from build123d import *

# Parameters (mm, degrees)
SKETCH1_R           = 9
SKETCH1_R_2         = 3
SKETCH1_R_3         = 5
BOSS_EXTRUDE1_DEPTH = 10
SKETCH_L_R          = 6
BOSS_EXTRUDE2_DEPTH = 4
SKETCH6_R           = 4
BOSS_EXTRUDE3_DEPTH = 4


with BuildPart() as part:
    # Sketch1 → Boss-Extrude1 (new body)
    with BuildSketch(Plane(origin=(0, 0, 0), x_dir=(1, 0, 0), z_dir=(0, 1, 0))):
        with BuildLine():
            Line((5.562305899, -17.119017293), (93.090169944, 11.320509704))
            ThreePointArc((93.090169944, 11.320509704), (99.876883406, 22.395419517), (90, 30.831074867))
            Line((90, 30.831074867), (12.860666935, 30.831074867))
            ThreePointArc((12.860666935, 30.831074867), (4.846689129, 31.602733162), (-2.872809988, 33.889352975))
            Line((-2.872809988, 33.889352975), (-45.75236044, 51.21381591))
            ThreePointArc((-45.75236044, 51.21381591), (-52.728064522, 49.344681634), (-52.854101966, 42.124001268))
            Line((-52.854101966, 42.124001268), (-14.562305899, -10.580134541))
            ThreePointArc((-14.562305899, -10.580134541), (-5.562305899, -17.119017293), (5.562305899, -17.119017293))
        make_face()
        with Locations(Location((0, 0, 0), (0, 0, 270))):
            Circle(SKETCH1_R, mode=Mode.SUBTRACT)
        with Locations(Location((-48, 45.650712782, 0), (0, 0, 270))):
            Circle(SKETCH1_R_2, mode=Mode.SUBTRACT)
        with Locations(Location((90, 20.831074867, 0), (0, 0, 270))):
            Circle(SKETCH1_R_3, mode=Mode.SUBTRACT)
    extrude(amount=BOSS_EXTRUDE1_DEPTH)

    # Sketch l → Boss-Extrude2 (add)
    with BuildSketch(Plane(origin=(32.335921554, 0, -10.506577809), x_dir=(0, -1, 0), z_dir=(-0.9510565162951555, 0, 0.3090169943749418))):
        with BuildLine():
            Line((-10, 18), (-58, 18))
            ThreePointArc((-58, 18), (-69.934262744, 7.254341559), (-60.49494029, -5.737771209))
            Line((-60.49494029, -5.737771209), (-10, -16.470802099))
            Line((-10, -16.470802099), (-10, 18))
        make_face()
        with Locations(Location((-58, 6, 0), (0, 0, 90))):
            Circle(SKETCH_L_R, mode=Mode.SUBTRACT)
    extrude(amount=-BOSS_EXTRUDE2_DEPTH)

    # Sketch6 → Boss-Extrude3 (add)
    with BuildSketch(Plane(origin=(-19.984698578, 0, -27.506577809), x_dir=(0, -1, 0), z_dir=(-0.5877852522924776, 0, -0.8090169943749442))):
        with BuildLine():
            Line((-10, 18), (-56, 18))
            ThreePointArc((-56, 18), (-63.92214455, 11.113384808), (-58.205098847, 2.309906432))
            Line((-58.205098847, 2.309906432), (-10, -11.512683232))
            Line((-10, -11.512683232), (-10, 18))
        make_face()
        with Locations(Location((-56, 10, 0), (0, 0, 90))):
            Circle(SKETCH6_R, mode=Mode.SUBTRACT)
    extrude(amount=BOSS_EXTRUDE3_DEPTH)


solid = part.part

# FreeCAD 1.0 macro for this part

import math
import FreeCAD as App
import Part
import Sketcher
Q = App.Units.Quantity

doc = App.newDocument("Part")
body = doc.addObject("PartDesign::Body", "Body")

sketch1 = body.newObject("Sketcher::SketchObject", "Sketch")
sketch1.AttachmentSupport = (doc.getObject("XZ_Plane"), [""])
sketch1.MapMode = "FlatFace"
sketch1.addGeometry([
    Part.LineSegment(App.Vector(5.562306, 17.119017, 0), App.Vector(93.09017, -11.32051, 0)),
    Part.ArcOfCircle(Part.Circle(App.Vector(90, -20.831075, 0), App.Vector(0, 0, 1), 10), math.radians(-90), math.radians(72)),
    Part.LineSegment(App.Vector(90, -30.831075, 0), App.Vector(12.860667, -30.831075, 0)),
    Part.ArcOfCircle(Part.Circle(App.Vector(12.860667, -72.831075, 0), App.Vector(0, 0, 1), 42), math.radians(90), math.radians(112)),
    Part.LineSegment(App.Vector(-2.87281, -33.889353, 0), App.Vector(-45.75236, -51.213816, 0)),
    Part.ArcOfCircle(Part.Circle(App.Vector(-48, -45.650713, 0), App.Vector(0, 0, 1), 6), math.radians(144), math.radians(292)),
    Part.LineSegment(App.Vector(-52.854102, -42.124001, 0), App.Vector(-14.562306, 10.580135, 0)),
    Part.ArcOfCircle(Part.Circle(App.Vector(0, 0, 0), App.Vector(0, 0, 1), 18), math.radians(72), math.radians(144)),
    Part.Circle(App.Vector(0, 0, 0), App.Vector(0, 0, 1), 9),
    Part.Circle(App.Vector(-48, -45.650713, 0), App.Vector(0, 0, 1), 3),
    Part.Circle(App.Vector(90, -20.831075, 0), App.Vector(0, 0, 1), 5),
], False)
sketch1.addConstraint([
    Sketcher.Constraint("Tangent", 0, 2, 1, 2),
    Sketcher.Constraint("Tangent", 1, 1, 2, 1),
    Sketcher.Constraint("Tangent", 2, 2, 3, 1),
    Sketcher.Constraint("Tangent", 3, 2, 4, 1),
    Sketcher.Constraint("Tangent", 4, 2, 5, 2),
    Sketcher.Constraint("Tangent", 5, 1, 6, 1),
    Sketcher.Constraint("Tangent", 6, 2, 7, 2),
    Sketcher.Constraint("Tangent", 7, 1, 0, 1),
    Sketcher.Constraint("Horizontal", 2),
    Sketcher.Constraint("Coincident", 7, 3, -1, 1),
    Sketcher.Constraint("Coincident", 8, 3, -1, 1),
    Sketcher.Constraint("Coincident", 9, 3, 5, 3),
    Sketcher.Constraint("Coincident", 10, 3, 1, 3),
    Sketcher.Constraint("Diameter", 8, 18.0),
    Sketcher.Constraint("Diameter", 9, 6.0),
    Sketcher.Constraint("Diameter", 10, 10.0),
    Sketcher.Constraint("Radius", 1, 10.0),
    Sketcher.Constraint("Radius", 3, 42.0),
    Sketcher.Constraint("Radius", 5, 6.0),
    Sketcher.Constraint("Radius", 7, 18.0),
    Sketcher.Constraint("Angle", 0, Q("-18 deg")),
    Sketcher.Constraint("Angle", 4, Q("-158 deg")),
    Sketcher.Constraint("Angle", 6, Q("54 deg")),
    Sketcher.Constraint("DistanceX", -1, 1, 1, 3, 90.0),
    Sketcher.Constraint("DistanceX", 5, 3, -1, 1, 48.0),
])
pad1 = body.newObject("PartDesign::Pad", "Pad")
pad1.Profile = sketch1
pad1.Length = 10
pad1.Reversed = True

sketch2 = body.newObject("Sketcher::SketchObject", "Sketch001")
sketch2.Placement = App.Placement(App.Vector(32.335922, 0, -10.506578), App.Rotation(App.Vector(0, -1, 0), App.Vector(0.309016994, 0, 0.951056516), App.Vector(-0.951056516, 0, 0.309016994), "ZXY"))
sketch2.addGeometry([
    Part.LineSegment(App.Vector(-10, 18, 0), App.Vector(-58, 18, 0)),
    Part.ArcOfCircle(Part.Circle(App.Vector(-58, 6, 0), App.Vector(0, 0, 1), 12), math.radians(90), math.radians(258)),
    Part.LineSegment(App.Vector(-60.49494, -5.737771, 0), App.Vector(-10, -16.470802, 0)),
    Part.LineSegment(App.Vector(-10, -16.470802, 0), App.Vector(-10, 18, 0)),
    Part.Circle(App.Vector(-58, 6, 0), App.Vector(0, 0, 1), 6),
], False)
sketch2.addConstraint([
    Sketcher.Constraint("Tangent", 0, 2, 1, 1),
    Sketcher.Constraint("Tangent", 1, 2, 2, 1),
    Sketcher.Constraint("Coincident", 2, 2, 3, 1),
    Sketcher.Constraint("Coincident", 3, 2, 0, 1),
    Sketcher.Constraint("Horizontal", 0),
    Sketcher.Constraint("Vertical", 3),
    Sketcher.Constraint("Coincident", 4, 3, 1, 3),
    Sketcher.Constraint("Diameter", 4, 12.0),
    Sketcher.Constraint("Radius", 1, 12.0),
    Sketcher.Constraint("DistanceX", 0, 2, 0, 1, 48.0),
    Sketcher.Constraint("Angle", 2, Q("-12 deg")),
    Sketcher.Constraint("DistanceX", 1, 3, -1, 1, 58.0),
    Sketcher.Constraint("DistanceY", -1, 1, 1, 3, 6.0),
])
pad2 = body.newObject("PartDesign::Pad", "Pad001")
pad2.Profile = sketch2
pad2.Length = 4
pad2.Reversed = True

sketch3 = body.newObject("Sketcher::SketchObject", "Sketch002")
sketch3.Placement = App.Placement(App.Vector(-19.984699, 0, -27.506578), App.Rotation(App.Vector(0, -1, 0), App.Vector(-0.809016994, 0, 0.587785252), App.Vector(-0.587785252, 0, -0.809016994), "ZXY"))
sketch3.addGeometry([
    Part.LineSegment(App.Vector(-10, 18, 0), App.Vector(-56, 18, 0)),
    Part.ArcOfCircle(Part.Circle(App.Vector(-56, 10, 0), App.Vector(0, 0, 1), 8), math.radians(90), math.radians(254)),
    Part.LineSegment(App.Vector(-58.205099, 2.309906, 0), App.Vector(-10, -11.512683, 0)),
    Part.LineSegment(App.Vector(-10, -11.512683, 0), App.Vector(-10, 18, 0)),
    Part.Circle(App.Vector(-56, 10, 0), App.Vector(0, 0, 1), 4),
], False)
sketch3.addConstraint([
    Sketcher.Constraint("Tangent", 0, 2, 1, 1),
    Sketcher.Constraint("Tangent", 1, 2, 2, 1),
    Sketcher.Constraint("Coincident", 2, 2, 3, 1),
    Sketcher.Constraint("Coincident", 3, 2, 0, 1),
    Sketcher.Constraint("Horizontal", 0),
    Sketcher.Constraint("Vertical", 3),
    Sketcher.Constraint("Coincident", 4, 3, 1, 3),
    Sketcher.Constraint("Diameter", 4, 8.0),
    Sketcher.Constraint("Radius", 1, 8.0),
    Sketcher.Constraint("DistanceX", 0, 2, 0, 1, 46.0),
    Sketcher.Constraint("Angle", 2, Q("-16 deg")),
    Sketcher.Constraint("DistanceX", 1, 3, -1, 1, 56.0),
    Sketcher.Constraint("DistanceY", -1, 1, 1, 3, 10.0),
])
pad3 = body.newObject("PartDesign::Pad", "Pad002")
pad3.Profile = sketch3
pad3.Length = 4

doc.recompute()
